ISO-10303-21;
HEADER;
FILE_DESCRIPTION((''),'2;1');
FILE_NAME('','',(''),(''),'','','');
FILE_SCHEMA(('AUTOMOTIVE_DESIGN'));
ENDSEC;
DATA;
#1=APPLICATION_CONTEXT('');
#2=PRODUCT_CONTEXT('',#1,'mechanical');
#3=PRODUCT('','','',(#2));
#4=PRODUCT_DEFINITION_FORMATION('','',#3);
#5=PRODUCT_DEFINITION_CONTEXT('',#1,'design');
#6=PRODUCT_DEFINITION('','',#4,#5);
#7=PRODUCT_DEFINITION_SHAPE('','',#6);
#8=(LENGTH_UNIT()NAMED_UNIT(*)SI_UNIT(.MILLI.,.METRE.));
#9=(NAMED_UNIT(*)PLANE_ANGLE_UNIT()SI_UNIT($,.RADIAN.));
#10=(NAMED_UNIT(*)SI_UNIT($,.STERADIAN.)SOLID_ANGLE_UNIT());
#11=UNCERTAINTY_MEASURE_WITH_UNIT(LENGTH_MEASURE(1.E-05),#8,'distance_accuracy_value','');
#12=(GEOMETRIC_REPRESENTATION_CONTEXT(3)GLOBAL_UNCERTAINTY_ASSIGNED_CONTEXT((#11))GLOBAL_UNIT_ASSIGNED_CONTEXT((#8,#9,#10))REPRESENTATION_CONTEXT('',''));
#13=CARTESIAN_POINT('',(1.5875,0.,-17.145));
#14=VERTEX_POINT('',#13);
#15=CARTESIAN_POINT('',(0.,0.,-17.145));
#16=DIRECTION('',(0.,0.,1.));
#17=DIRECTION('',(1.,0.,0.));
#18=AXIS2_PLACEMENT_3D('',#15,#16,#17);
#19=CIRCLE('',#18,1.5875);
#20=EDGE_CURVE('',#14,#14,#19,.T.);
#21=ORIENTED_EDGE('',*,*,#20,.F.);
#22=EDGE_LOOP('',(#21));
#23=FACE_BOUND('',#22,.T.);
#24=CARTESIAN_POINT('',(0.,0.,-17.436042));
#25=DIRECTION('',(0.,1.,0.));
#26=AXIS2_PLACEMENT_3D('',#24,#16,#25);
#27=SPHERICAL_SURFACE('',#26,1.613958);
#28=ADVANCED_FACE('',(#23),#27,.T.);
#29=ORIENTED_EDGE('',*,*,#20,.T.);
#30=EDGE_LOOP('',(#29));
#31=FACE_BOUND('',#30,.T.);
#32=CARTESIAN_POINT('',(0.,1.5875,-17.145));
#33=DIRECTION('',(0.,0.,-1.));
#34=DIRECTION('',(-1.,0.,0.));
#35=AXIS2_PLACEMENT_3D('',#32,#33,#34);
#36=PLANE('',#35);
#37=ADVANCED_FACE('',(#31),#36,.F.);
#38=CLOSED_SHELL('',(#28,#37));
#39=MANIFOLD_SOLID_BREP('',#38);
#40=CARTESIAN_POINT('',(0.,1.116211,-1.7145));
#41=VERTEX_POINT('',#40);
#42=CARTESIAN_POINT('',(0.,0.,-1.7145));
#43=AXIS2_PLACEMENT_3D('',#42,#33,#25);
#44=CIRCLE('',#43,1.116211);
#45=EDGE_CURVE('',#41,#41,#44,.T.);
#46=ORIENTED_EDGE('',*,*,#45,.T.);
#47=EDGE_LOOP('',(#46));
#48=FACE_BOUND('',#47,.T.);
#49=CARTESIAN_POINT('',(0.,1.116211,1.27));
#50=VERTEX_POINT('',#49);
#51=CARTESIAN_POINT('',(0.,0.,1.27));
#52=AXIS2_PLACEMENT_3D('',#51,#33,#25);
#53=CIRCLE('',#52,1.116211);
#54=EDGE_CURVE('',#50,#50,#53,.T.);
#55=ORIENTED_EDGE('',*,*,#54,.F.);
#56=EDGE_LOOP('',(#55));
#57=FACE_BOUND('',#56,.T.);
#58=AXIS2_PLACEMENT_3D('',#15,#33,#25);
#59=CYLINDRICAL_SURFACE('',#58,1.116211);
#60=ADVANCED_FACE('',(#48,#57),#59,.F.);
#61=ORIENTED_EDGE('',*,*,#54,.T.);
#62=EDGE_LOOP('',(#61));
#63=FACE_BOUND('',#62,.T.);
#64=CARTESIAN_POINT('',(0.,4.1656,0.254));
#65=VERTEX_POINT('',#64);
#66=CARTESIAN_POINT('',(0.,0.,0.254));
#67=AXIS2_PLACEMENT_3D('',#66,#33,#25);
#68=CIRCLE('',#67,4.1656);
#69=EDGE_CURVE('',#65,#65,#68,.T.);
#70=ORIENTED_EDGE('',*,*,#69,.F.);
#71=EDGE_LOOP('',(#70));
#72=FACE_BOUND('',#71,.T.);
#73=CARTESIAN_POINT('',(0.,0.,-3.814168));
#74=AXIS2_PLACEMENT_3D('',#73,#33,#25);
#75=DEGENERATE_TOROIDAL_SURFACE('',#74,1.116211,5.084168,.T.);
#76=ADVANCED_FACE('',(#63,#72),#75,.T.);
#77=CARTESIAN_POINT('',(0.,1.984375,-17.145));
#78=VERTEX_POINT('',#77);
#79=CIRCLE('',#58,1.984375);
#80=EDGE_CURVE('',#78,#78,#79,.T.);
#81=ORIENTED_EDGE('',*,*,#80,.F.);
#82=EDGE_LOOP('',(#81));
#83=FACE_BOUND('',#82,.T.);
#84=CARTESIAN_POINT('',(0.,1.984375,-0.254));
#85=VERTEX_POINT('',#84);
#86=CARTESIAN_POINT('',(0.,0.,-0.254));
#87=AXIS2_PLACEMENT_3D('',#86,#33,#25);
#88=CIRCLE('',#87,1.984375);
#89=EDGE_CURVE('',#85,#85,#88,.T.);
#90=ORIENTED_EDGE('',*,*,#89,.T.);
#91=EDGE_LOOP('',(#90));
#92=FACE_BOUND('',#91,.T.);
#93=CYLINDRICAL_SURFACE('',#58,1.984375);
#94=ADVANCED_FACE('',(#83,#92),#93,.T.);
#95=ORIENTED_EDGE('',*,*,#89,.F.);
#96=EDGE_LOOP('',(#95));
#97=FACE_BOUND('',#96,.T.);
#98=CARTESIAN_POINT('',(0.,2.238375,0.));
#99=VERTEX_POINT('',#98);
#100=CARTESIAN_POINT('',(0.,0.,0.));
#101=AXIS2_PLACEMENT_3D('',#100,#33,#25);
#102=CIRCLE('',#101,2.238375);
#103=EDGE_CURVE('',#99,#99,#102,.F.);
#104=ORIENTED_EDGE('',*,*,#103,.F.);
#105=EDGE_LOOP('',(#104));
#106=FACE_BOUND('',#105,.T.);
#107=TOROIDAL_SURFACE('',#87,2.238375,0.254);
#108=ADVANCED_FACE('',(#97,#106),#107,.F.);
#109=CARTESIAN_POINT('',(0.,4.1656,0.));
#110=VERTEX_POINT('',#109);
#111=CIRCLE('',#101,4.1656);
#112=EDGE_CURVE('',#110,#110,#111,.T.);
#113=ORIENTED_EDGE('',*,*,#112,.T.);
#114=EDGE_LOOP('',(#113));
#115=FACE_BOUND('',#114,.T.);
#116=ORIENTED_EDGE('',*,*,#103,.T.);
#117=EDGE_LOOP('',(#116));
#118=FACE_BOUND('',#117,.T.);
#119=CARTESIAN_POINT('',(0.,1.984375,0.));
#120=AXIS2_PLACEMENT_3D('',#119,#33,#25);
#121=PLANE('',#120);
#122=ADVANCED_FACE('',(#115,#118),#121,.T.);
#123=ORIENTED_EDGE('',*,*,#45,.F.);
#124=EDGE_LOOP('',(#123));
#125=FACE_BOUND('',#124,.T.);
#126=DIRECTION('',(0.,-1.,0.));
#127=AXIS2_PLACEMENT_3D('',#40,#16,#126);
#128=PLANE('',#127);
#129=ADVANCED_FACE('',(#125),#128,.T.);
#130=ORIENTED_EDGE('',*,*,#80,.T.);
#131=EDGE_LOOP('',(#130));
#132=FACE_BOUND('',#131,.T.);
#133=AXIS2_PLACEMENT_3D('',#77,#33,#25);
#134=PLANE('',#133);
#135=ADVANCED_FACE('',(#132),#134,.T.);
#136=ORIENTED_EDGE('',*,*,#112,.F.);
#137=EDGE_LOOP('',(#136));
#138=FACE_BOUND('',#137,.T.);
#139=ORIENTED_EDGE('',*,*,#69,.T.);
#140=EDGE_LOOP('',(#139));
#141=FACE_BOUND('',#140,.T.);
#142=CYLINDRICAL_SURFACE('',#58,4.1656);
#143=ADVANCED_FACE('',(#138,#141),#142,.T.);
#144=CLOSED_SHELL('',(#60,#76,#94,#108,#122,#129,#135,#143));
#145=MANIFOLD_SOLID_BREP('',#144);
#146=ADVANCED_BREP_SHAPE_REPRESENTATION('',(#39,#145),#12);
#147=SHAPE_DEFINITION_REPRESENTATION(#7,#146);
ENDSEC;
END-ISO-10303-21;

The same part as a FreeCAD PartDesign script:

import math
import FreeCAD as App
import Part
import Sketcher
Q = App.Units.Quantity


def edges_at(feature, points):
    """Names of the edges that pass closest to the given points."""
    edges = feature.Shape.Edges
    near = lambda p: min(range(len(edges)), key=lambda i: edges[i].distToShape(Part.Vertex(*p))[0])
    return sorted({f"Edge{near(p) + 1}" for p in points})

doc = App.newDocument("Part")
params = doc.addObject("Spreadsheet::Sheet", "Params")
for row, (alias, value) in enumerate([
    ("sketch1_height", "0.01 in"),
    ("sketch1_height2", "0.05 in"),
    ("sketch1_width", "0.078125 in"),
    ("sketch1_height3", "0.675 in"),
    ("revolution_angle", "360 deg"),
    ("fillet_radius", "0.01 in"),
    ("sketch2_width", "0.0625 in"),
    ("sketch2_height", "0.075 in"),
    ("revolution2_angle", "360 deg"),
], start=1):
    params.set(f"A{row}", alias)
    params.set(f"B{row}", "=" + value)
    params.setAlias(f"B{row}", alias)

body = doc.addObject("PartDesign::Body", "Body")

# Sketch on YZ plane
sketch1 = body.newObject("Sketcher::SketchObject", "Sketch")
sketch1.AttachmentSupport = (doc.getObject("YZ_Plane"), [""])
sketch1.MapMode = "FlatFace"
sketch1.addGeometry(Part.LineSegment(App.Vector(1.98, -17.14, 0), App.Vector(1.98, 0, 0)), False)
sketch1.addGeometry(Part.LineSegment(App.Vector(1.98, 0, 0), App.Vector(4.17, 0, 0)), False)
sketch1.addGeometry(Part.LineSegment(App.Vector(4.17, 0, 0), App.Vector(4.17, 0.25, 0)), False)
sketch1.addGeometry(Part.ArcOfCircle(Part.Circle(App.Vector(1.12, -3.81, 0), App.Vector(0, 0, 1), 5.08), math.radians(53), math.radians(90)), False)
sketch1.addGeometry(Part.LineSegment(App.Vector(1.12, 1.27, 0), App.Vector(1.12, 0, 0)), False)
sketch1.addGeometry(Part.LineSegment(App.Vector(1.12, 0, 0), App.Vector(1.12, -1.71, 0)), False)
sketch1.addGeometry(Part.LineSegment(App.Vector(1.12, -1.71, 0), App.Vector(0, -1.71, 0)), False)
sketch1.addGeometry(Part.LineSegment(App.Vector(0, -1.71, 0), App.Vector(0, -17.14, 0)), False)
sketch1.addGeometry(Part.LineSegment(App.Vector(0, -17.14, 0), App.Vector(1.98, -17.14, 0)), False)
sketch1.addConstraint(Sketcher.Constraint("Coincident", 0, 2, 1, 1))
sketch1.addConstraint(Sketcher.Constraint("Coincident", 1, 2, 2, 1))
sketch1.addConstraint(Sketcher.Constraint("Coincident", 2, 2, 3, 1))
sketch1.addConstraint(Sketcher.Constraint("Coincident", 3, 2, 4, 1))
sketch1.addConstraint(Sketcher.Constraint("Coincident", 4, 2, 5, 1))
sketch1.addConstraint(Sketcher.Constraint("Coincident", 5, 2, 6, 1))
sketch1.addConstraint(Sketcher.Constraint("Coincident", 6, 2, 7, 1))
sketch1.addConstraint(Sketcher.Constraint("Coincident", 7, 2, 8, 1))
sketch1.addConstraint(Sketcher.Constraint("Coincident", 8, 2, 0, 1))
sketch1.addConstraint(Sketcher.Constraint("Vertical", 0))
sketch1.addConstraint(Sketcher.Constraint("Horizontal", 1))
sketch1.addConstraint(Sketcher.Constraint("Vertical", 2))
sketch1.addConstraint(Sketcher.Constraint("Vertical", 4))
sketch1.addConstraint(Sketcher.Constraint("Vertical", 5))
sketch1.addConstraint(Sketcher.Constraint("Horizontal", 6))
sketch1.addConstraint(Sketcher.Constraint("Vertical", 7))
sketch1.addConstraint(Sketcher.Constraint("Horizontal", 8))
sketch1.addConstraint(Sketcher.Constraint("PointOnObject", 0, 2, -1))
sketch1.addConstraint(Sketcher.Constraint("PointOnObject", 4, 2, -1))
sketch1.addConstraint(Sketcher.Constraint("PointOnObject", 6, 2, -2))
sketch1.addConstraint(Sketcher.Constraint("DistanceY", 2, 1, 2, 2, Q("0.01 in")))
sketch1.addConstraint(Sketcher.Constraint("DistanceY", 4, 2, 4, 1, Q("0.05 in")))
sketch1.addConstraint(Sketcher.Constraint("DistanceX", 8, 1, 8, 2, Q("0.078125 in")))
sketch1.addConstraint(Sketcher.Constraint("DistanceY", 0, 1, 0, 2, Q("0.675 in")))
sketch1.addConstraint(Sketcher.Constraint("DistanceY", 5, 2, 5, 1, Q("0.0675 in")))
sketch1.addConstraint(Sketcher.Constraint("DistanceX", -1, 1, 1, 2, Q("0.164 in")))
sketch1.addConstraint(Sketcher.Constraint("Radius", 3, 5.084168))
sketch1.addConstraint(Sketcher.Constraint("DistanceX", 6, 2, 6, 1, 1.116211))
sketch1.setExpression("Constraints[20]", "Params.sketch1_height")
sketch1.setExpression("Constraints[21]", "Params.sketch1_height2")
sketch1.setExpression("Constraints[22]", "Params.sketch1_width")
sketch1.setExpression("Constraints[23]", "Params.sketch1_height3")
revolution = body.newObject("PartDesign::Revolution", "Revolution")
revolution.Profile = sketch1
revolution.ReferenceAxis = (sketch1, ["V_Axis"])
revolution.setExpression("Angle", "Params.revolution_angle")
doc.recompute()

fillet = body.newObject("PartDesign::Fillet", "Fillet")
fillet.Base = (revolution, edges_at(revolution, [(0, -1.984, 0)]))
fillet.setExpression("Radius", "Params.fillet_radius")
body2 = doc.addObject("PartDesign::Body", "Body001")

# Sketch on YZ plane
sketch2 = body2.newObject("Sketcher::SketchObject", "Sketch001")
sketch2.AttachmentSupport = (doc.getObject("YZ_Plane001"), [""])
sketch2.MapMode = "FlatFace"
sketch2.addGeometry(Part.LineSegment(App.Vector(1.6, -17.1, 0), App.Vector(0, -17.1, 0)), False)
sketch2.addGeometry(Part.LineSegment(App.Vector(0, -17.1, 0), App.Vector(0, -19.1, 0)), False)
sketch2.addGeometry(Part.ArcOfCircle(Part.Circle(App.Vector(0, -17.4, 0), App.Vector(0, 0, 1), 1.6), math.radians(-90), math.radians(10)), False)
sketch2.addConstraint(Sketcher.Constraint("Coincident", 0, 2, 1, 1))
sketch2.addConstraint(Sketcher.Constraint("Coincident", 1, 2, 2, 1))
sketch2.addConstraint(Sketcher.Constraint("Coincident", 2, 2, 0, 1))
sketch2.addConstraint(Sketcher.Constraint("Horizontal", 0))
sketch2.addConstraint(Sketcher.Constraint("Vertical", 1))
sketch2.addConstraint(Sketcher.Constraint("PointOnObject", 2, 3, -2))
sketch2.addConstraint(Sketcher.Constraint("PointOnObject", 0, 2, -2))
sketch2.addConstraint(Sketcher.Constraint("DistanceX", 0, 2, 0, 1, Q("0.0625 in")))
sketch2.addConstraint(Sketcher.Constraint("DistanceY", 1, 2, 1, 1, Q("0.075 in")))
sketch2.addConstraint(Sketcher.Constraint("DistanceY", 1, 2, -1, 1, Q("0.75 in")))
sketch2.setExpression("Constraints[7]", "Params.sketch2_width")
sketch2.setExpression("Constraints[8]", "Params.sketch2_height")
revolution2 = body2.newObject("PartDesign::Revolution", "Revolution001")
revolution2.Profile = sketch2
revolution2.ReferenceAxis = (sketch2, ["V_Axis"])
revolution2.setExpression("Angle", "Params.revolution2_angle")

doc.recompute()
